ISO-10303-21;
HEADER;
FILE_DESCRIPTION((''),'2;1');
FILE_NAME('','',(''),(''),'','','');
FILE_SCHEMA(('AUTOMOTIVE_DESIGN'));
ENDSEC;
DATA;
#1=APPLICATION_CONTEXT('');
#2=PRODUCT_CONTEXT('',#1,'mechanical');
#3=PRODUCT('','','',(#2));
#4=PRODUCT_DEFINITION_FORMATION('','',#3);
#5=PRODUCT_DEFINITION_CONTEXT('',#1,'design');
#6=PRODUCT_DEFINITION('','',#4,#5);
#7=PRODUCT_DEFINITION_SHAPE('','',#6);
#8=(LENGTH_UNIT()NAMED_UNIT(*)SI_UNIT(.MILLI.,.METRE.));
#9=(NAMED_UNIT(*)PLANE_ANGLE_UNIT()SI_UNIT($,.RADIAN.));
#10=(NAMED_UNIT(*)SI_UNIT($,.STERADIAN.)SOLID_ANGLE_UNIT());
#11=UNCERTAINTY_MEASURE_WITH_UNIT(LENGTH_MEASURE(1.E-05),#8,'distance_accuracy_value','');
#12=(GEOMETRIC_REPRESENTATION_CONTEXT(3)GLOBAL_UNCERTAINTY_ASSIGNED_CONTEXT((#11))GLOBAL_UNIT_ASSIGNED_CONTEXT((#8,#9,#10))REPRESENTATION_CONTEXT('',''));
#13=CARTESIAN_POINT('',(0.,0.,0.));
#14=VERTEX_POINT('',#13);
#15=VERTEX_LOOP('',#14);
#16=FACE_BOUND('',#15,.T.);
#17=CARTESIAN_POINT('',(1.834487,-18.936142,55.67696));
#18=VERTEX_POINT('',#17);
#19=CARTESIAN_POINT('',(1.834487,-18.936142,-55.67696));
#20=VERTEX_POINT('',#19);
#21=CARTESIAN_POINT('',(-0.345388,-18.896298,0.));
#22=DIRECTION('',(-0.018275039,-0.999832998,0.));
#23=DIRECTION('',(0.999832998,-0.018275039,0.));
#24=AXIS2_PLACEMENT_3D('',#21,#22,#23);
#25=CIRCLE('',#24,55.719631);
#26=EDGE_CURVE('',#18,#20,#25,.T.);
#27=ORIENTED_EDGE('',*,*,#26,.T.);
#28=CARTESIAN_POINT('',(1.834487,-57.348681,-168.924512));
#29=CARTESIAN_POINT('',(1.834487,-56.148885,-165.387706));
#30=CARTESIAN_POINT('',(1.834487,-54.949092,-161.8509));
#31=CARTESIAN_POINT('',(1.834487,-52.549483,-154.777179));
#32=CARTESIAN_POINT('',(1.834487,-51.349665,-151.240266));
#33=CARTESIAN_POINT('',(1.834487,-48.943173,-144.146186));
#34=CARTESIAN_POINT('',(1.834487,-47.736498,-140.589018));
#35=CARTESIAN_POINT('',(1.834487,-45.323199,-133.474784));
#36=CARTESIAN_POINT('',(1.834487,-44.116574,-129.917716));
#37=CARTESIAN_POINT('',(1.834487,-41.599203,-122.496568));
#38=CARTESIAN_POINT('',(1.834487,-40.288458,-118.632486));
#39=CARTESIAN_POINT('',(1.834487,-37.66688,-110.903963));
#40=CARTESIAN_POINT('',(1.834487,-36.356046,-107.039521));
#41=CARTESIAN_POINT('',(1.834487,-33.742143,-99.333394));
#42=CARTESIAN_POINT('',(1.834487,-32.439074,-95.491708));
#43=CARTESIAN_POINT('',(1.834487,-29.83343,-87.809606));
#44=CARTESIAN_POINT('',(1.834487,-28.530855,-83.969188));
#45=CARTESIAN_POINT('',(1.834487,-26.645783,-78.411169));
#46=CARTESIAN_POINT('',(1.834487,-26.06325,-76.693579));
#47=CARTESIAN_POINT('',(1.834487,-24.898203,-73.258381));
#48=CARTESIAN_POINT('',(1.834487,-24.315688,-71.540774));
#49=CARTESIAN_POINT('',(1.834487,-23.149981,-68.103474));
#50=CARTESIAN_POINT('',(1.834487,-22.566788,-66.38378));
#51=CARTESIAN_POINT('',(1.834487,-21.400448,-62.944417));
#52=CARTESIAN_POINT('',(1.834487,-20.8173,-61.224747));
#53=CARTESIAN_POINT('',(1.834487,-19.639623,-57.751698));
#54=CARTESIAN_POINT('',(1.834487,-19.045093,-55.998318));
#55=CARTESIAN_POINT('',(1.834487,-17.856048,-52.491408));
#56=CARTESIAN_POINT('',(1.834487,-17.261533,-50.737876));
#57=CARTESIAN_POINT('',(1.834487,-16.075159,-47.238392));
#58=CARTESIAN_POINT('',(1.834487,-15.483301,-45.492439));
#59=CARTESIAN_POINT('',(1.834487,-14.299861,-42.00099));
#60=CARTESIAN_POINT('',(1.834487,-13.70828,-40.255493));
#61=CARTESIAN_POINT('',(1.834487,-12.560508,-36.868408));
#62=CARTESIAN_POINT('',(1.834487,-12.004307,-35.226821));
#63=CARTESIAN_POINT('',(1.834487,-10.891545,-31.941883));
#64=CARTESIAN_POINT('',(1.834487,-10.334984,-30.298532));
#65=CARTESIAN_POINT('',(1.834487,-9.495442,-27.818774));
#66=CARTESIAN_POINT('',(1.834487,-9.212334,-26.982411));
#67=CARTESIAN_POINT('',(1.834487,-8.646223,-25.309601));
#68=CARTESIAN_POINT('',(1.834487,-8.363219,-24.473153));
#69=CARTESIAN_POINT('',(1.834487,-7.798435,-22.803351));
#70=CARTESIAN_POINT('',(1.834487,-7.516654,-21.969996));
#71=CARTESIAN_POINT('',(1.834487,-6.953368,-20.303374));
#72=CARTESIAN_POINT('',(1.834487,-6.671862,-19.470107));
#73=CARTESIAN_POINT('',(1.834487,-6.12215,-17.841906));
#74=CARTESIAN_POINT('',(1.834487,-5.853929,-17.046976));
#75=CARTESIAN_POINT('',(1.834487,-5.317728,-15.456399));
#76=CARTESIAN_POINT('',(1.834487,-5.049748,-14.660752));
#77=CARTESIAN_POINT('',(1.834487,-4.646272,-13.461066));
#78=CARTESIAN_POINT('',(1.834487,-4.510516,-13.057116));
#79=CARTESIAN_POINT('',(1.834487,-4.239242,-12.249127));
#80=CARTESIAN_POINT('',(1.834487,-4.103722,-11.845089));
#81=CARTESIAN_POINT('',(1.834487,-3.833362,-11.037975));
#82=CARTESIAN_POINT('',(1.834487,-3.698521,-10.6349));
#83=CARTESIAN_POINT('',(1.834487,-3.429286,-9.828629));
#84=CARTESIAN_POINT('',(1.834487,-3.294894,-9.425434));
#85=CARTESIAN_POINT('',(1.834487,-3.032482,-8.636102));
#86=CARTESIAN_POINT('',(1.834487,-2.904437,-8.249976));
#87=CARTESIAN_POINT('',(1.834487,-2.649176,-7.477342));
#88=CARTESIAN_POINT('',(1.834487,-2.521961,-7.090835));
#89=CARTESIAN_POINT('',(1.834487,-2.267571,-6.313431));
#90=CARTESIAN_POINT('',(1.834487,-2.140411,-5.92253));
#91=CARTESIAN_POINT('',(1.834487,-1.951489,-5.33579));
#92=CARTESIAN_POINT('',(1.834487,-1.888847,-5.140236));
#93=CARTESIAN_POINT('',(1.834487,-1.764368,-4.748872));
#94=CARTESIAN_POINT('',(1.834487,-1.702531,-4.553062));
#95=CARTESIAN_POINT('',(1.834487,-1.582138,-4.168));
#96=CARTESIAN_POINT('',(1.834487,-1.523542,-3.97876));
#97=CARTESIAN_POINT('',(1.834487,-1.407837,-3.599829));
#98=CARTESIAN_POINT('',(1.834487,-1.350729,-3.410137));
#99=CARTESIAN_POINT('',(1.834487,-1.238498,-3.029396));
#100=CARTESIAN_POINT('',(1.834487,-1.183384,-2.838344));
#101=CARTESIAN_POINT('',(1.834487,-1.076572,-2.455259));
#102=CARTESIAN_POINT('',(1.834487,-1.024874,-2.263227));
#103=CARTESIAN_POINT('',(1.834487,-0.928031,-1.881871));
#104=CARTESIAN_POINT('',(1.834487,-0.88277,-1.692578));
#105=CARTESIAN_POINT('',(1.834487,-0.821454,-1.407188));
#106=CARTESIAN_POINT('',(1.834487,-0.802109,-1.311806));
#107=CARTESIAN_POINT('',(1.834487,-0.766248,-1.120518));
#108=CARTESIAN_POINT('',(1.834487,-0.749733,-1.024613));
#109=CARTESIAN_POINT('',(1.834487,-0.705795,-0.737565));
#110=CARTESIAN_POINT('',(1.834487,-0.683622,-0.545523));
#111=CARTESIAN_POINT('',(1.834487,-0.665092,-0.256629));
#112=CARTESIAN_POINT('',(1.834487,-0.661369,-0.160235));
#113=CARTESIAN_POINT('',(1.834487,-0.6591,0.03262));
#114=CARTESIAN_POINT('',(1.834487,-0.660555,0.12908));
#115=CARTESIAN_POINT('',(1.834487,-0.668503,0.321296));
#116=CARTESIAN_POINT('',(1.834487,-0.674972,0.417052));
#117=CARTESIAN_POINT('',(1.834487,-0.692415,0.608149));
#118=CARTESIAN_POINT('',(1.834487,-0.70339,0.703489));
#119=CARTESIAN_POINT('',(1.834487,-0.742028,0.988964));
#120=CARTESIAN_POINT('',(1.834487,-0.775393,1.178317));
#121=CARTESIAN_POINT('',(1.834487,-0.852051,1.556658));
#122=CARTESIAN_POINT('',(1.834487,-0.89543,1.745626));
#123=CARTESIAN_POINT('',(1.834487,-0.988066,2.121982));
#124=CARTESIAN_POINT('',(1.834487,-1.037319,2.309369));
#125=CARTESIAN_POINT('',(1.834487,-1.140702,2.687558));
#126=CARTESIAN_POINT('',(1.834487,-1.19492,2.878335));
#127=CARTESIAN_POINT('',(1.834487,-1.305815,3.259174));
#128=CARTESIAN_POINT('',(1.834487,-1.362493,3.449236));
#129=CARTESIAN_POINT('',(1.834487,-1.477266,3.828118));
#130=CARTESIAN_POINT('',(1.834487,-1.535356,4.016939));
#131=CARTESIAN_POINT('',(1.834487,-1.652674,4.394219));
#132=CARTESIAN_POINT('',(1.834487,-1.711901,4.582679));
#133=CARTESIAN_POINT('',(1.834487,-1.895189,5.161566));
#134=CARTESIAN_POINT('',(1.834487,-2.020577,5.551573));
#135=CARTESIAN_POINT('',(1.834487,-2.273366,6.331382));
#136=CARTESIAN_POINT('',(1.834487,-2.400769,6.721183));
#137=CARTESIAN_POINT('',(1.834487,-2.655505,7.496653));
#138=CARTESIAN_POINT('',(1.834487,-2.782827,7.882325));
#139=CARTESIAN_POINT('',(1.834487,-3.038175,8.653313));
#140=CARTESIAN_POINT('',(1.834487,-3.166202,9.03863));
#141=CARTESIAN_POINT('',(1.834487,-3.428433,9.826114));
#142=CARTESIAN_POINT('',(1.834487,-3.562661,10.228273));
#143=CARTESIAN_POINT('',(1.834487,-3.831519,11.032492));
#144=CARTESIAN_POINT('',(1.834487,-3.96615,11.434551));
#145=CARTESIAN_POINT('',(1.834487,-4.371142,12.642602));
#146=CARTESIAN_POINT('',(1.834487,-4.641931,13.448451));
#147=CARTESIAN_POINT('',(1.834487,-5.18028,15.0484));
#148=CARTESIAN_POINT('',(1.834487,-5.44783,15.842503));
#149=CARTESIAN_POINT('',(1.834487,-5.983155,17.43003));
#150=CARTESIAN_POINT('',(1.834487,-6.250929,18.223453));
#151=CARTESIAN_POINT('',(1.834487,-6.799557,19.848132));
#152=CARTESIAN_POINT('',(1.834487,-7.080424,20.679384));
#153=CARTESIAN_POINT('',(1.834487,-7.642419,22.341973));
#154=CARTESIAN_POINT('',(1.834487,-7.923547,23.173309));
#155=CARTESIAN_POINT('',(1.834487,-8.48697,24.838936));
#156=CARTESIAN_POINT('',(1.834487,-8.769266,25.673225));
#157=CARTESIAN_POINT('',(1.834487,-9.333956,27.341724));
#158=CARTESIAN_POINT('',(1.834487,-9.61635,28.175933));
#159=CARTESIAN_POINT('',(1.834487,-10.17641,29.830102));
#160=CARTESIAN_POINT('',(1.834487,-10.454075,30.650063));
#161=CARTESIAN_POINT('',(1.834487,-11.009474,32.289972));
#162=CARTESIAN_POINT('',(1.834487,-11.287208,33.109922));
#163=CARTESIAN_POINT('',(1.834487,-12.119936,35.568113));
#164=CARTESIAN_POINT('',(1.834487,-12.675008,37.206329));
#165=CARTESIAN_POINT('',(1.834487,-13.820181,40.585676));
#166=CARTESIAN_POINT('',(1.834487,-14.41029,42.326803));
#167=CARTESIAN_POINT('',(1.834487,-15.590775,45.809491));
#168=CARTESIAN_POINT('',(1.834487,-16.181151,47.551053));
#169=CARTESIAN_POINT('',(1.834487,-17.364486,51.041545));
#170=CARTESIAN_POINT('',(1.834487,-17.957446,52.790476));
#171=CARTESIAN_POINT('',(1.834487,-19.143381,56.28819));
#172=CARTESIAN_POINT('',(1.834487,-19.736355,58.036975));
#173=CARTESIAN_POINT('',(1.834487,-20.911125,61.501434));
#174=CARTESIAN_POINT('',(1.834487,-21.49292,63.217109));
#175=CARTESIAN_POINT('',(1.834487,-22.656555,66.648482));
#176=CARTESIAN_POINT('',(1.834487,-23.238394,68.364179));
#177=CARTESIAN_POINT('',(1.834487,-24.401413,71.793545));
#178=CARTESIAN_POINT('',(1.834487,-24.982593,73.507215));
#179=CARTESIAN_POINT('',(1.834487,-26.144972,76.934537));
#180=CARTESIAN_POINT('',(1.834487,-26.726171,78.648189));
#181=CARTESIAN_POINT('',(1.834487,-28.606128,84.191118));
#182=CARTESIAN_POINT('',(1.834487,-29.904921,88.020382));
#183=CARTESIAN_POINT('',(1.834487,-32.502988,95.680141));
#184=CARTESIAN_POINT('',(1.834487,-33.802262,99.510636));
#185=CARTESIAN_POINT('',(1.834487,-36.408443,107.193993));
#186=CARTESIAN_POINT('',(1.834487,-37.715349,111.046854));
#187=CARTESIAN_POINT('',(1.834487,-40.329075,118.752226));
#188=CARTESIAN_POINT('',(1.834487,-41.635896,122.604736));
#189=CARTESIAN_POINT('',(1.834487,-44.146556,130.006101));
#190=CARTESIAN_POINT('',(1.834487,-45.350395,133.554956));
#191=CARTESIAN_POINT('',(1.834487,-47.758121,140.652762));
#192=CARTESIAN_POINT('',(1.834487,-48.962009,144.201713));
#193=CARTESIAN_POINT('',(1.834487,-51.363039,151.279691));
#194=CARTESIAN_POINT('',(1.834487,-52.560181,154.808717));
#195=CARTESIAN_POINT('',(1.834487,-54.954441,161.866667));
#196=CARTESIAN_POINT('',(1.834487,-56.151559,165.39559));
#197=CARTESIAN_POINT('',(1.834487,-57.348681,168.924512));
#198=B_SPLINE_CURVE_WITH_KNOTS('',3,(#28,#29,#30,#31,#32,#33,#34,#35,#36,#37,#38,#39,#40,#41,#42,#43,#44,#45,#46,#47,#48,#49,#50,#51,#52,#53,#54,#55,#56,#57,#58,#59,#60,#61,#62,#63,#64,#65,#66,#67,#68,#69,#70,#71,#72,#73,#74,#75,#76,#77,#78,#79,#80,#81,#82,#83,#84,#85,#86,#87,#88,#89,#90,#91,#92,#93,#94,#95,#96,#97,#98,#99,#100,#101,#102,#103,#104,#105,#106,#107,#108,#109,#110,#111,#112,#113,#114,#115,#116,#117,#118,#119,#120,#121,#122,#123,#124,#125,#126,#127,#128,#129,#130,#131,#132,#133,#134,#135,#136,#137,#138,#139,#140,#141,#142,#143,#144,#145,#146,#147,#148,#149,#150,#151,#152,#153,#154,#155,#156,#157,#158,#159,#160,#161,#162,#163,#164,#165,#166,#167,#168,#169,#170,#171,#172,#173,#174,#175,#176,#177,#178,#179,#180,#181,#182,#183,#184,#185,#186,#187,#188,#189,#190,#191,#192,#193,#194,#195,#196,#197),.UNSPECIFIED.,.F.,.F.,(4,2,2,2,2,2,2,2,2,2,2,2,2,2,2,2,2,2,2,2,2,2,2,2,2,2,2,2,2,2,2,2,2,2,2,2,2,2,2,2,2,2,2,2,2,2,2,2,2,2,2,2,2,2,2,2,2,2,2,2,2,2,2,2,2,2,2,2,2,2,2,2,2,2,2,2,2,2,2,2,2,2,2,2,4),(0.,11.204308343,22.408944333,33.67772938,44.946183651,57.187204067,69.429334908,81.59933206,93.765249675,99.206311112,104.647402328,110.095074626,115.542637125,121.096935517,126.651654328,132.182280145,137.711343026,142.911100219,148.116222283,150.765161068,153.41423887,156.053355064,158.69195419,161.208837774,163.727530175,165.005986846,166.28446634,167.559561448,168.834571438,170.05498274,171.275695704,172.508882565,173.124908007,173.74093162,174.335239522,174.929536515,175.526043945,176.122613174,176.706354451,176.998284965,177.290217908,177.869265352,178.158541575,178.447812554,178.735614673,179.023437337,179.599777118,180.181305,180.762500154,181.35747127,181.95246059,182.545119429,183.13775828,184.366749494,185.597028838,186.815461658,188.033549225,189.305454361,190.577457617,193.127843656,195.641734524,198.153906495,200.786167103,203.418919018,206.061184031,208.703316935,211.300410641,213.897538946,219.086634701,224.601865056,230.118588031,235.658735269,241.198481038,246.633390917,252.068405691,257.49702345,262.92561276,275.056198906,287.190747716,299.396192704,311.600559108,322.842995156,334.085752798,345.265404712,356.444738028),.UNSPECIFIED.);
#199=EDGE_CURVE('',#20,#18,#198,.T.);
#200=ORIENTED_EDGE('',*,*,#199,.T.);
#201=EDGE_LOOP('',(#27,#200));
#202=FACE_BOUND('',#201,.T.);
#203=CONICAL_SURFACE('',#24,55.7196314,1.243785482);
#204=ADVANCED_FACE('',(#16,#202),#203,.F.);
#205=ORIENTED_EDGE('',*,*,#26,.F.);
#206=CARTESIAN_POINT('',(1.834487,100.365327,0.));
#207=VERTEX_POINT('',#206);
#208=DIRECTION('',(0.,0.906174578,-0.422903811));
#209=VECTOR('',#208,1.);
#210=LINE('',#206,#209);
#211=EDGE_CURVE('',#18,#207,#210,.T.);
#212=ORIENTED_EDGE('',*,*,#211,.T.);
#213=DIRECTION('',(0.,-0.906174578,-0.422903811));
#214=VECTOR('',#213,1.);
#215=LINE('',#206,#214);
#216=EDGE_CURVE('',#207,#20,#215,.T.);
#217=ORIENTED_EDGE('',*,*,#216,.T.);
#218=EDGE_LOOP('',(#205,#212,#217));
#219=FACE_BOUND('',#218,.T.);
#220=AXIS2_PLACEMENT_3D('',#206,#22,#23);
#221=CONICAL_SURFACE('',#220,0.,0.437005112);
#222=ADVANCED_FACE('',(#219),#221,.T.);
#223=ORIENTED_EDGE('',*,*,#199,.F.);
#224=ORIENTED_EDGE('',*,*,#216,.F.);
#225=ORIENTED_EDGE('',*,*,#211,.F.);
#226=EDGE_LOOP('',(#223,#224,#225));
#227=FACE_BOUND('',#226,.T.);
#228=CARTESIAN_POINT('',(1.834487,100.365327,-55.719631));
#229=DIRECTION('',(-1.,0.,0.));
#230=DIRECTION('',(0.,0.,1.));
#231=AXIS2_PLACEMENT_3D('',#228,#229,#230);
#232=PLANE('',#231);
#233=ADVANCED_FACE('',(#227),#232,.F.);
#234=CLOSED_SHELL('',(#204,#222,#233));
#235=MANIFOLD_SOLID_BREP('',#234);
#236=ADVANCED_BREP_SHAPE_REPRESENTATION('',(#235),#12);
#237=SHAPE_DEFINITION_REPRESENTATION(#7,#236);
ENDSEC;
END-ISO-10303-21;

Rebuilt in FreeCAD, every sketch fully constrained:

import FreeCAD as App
import Part
import Sketcher

V = App.Vector
Q = App.Units.Quantity


def add_polygon(sketch, points):
    """Adds a closed chain of lines whose ends are joined by coincident constraints."""
    first, n = sketch.GeometryCount, len(points)
    for a, b in zip(points, points[1:] + points[:1]):
        sketch.addGeometry(Part.LineSegment(App.Vector(*a, 0), App.Vector(*b, 0)), False)
    for i in range(n):
        sketch.addConstraint(Sketcher.Constraint("Coincident", first + i, 2, first + (i + 1) % n, 1))

doc = App.newDocument("Part")
params = doc.addObject("Spreadsheet::Sheet", "Params")
for row, (alias, value) in enumerate([
    ("revolution_angle", "360 deg"),
    ("sketch2_length", "2.1829999 in"),
], start=1):
    params.set(f"A{row}", alias)
    params.set(f"B{row}", "=" + value)
    params.setAlias(f"B{row}", alias)

body = doc.addObject("PartDesign::Body", "Body")

# Sketch on XY plane
sketch1 = body.newObject("Sketcher::SketchObject", "Sketch")
sketch1.AttachmentSupport = (doc.getObject("XY_Plane"), [""])
sketch1.MapMode = "FlatFace"
add_polygon(sketch1, [(2, 100), (-56, -18), (0, 0)])  # lines 0-2
sketch1.addGeometry(Part.LineSegment(V(0, -19, 0), V(2, 100, 0)), True)  # axis
sketch1.addConstraint([
    Sketcher.Constraint("Coincident", 1, 2, -1, 1),
    Sketcher.Constraint("Coincident", 3, 2, 2, 2),
    Sketcher.Constraint("Parallel", 2, 3),
    Sketcher.Constraint("DistanceX", 0, 2, 2, 2, Q("57.890201 mm")),
    Sketcher.Constraint("Distance", 1, Q("58.83763 mm")),
    Sketcher.Constraint("Distance", 2, Q("100.382091 mm")),
    Sketcher.Constraint("DistanceY", 0, 2, -1, 1, Q("17.878019 mm")),
    Sketcher.Constraint("DistanceX", 3, 1, -1, 1, Q("0.345388 mm")),
])
revolution = body.newObject("PartDesign::Revolution", "Revolution")
revolution.Profile = sketch1
revolution.ReferenceAxis = (sketch1, ["Axis0"])
revolution.setExpression("Angle", "Params.revolution_angle")

# Sketch on XY plane
sketch2 = body.newObject("Sketcher::SketchObject", "Sketch001")
sketch2.AttachmentSupport = (doc.getObject("XY_Plane"), [""])
sketch2.MapMode = "FlatFace"
add_polygon(sketch2, [(2, 100), (2, -33), (93, -24), (68, 121), (20, 149), (12, 135)])  # lines 0-5
sketch2.addConstraint([
    Sketcher.Constraint("Vertical", 0),
    Sketcher.Constraint("Perpendicular", 3, 4),
    Sketcher.Constraint("Distance", 3, Q("2.1829999 in")),
    Sketcher.Constraint("DistanceX", -1, 1, 3, 2, Q("19.689199 mm")),
    Sketcher.Constraint("Distance", 5, Q("36.050771 mm")),
    Sketcher.Constraint("DistanceY", 0, 2, 0, 1, Q("133.478462 mm")),
    Sketcher.Constraint("DistanceX", -1, 1, 1, 2, Q("93.28077 mm")),
    Sketcher.Constraint("DistanceY", 1, 2, -1, 1, Q("23.608141 mm")),
    Sketcher.Constraint("DistanceX", 0, 2, 2, 2, Q("66.07039 mm")),
    Sketcher.Constraint("DistanceY", 0, 2, 2, 2, Q("154.40063 mm")),
    Sketcher.Constraint("DistanceX", 0, 2, 3, 2, Q("17.854712 mm")),
    Sketcher.Constraint("DistanceY", 1, 2, 3, 2, Q("172.277219 mm")),
])
sketch2.setExpression("Constraints[8]", "Params.sketch2_length")
pocket1 = body.newObject("PartDesign::Pocket", "Pocket")
pocket1.Profile = sketch2
pocket1.Type = "ThroughAll"
pocket1.Midplane = True

doc.recompute()
